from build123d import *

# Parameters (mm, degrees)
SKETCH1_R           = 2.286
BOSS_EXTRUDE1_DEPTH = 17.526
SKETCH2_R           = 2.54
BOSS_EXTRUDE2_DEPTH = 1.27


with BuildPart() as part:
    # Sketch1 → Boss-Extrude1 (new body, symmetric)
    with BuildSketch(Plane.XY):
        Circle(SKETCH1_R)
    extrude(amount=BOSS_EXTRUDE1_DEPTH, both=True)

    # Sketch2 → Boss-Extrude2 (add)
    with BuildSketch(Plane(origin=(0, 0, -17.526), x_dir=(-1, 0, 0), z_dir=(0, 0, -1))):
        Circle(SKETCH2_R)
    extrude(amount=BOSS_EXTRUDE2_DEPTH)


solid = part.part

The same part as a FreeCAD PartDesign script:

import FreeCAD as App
import Part
import Sketcher
from FreeCAD import Vector
Q = App.Units.Quantity

doc = App.newDocument("Part")
body = doc.addObject("PartDesign::Body", "Body")

sketch1 = doc.addObject("Sketcher::SketchObject", "Sketch")
body.addObject(sketch1)
sketch1.AttachmentSupport = (doc.XY_Plane, [""])
sketch1.MapMode = "FlatFace"
sketch1.addGeometry(Part.Circle(Vector(0, 0, 0), Vector(0, 0, 1), 2.3), False)
sketch1.addConstraint(Sketcher.Constraint("Coincident", 0, 3, -1, 1))
sketch1.addConstraint(Sketcher.Constraint("Diameter", 0, Q("0.18 in")))
pad1 = doc.addObject("PartDesign::Pad", "Pad")
body.addObject(pad1)
pad1.Profile = sketch1
pad1.Length = Q("1.38 in")
pad1.Midplane = True

sketch2 = doc.addObject("Sketcher::SketchObject", "Sketch001")
body.addObject(sketch2)
sketch2.AttachmentSupport = (doc.XY_Plane, [""])
sketch2.MapMode = "FlatFace"
sketch2.AttachmentOffset = App.Placement(Vector(0, 0, -0.69 * 25.4), App.Rotation())
sketch2.addGeometry(Part.Circle(Vector(0, 0, 0), Vector(0, 0, 1), 2.5), False)
sketch2.addConstraint(Sketcher.Constraint("Coincident", 0, 3, -1, 1))
sketch2.addConstraint(Sketcher.Constraint("Diameter", 0, Q("0.2 in")))
pad2 = doc.addObject("PartDesign::Pad", "Pad001")
body.addObject(pad2)
pad2.Profile = sketch2
pad2.Length = Q("0.05 in")
pad2.Reversed = True

doc.recompute()
